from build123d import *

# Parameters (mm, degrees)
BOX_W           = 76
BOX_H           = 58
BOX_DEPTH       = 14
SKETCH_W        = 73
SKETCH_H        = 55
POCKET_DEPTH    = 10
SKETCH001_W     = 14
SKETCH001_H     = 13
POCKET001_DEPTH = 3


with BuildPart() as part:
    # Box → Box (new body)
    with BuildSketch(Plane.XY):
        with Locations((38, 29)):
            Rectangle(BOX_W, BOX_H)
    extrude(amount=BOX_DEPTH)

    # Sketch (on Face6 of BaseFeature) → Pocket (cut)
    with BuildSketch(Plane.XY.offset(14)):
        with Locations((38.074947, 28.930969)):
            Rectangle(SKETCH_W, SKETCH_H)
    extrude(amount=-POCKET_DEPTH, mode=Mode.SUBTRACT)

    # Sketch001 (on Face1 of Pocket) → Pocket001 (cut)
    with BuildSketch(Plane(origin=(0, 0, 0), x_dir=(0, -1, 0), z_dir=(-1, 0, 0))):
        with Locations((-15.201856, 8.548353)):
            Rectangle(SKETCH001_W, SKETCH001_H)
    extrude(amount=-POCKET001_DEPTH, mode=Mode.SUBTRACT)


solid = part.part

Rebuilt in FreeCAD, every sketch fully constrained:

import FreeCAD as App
import Part
import Sketcher
from FreeCAD import Vector
Q = App.Units.Quantity

doc = App.newDocument("Part")
params = doc.addObject("Spreadsheet::Sheet", "Params")
for row, (alias, value) in enumerate([
    ("sketch1_width", "76 mm"),
    ("sketch1_height", "58 mm"),
    ("pad1_length", "14 mm"),
    ("sketch2_width", "73 mm"),
    ("sketch2_height", "55 mm"),
    ("pocket1_length", "10 mm"),
    ("sketch3_width", "14 mm"),
    ("sketch3_height", "13 mm"),
    ("pocket2_length", "3 mm"),
], start=1):
    params.set(f"A{row}", alias)
    params.set(f"B{row}", "=" + value)
    params.setAlias(f"B{row}", alias)

body = doc.addObject("PartDesign::Body", "Body")

# Sketch on XY plane
sketch1 = body.newObject("Sketcher::SketchObject", "Sketch")
sketch1.AttachmentSupport = (doc.getObject("XY_Plane"), [""])
sketch1.MapMode = "FlatFace"
sketch1.addGeometry([
    Part.LineSegment(Vector(0, 58, 0), Vector(0, 0, 0)),
    Part.LineSegment(Vector(0, 0, 0), Vector(76, 0, 0)),
    Part.LineSegment(Vector(76, 0, 0), Vector(76, 58, 0)),
    Part.LineSegment(Vector(76, 58, 0), Vector(0, 58, 0)),
], False)
sketch1.addConstraint([
    Sketcher.Constraint("Coincident", 0, 2, 1, 1),
    Sketcher.Constraint("Coincident", 1, 2, 2, 1),
    Sketcher.Constraint("Coincident", 2, 2, 3, 1),
    Sketcher.Constraint("Coincident", 3, 2, 0, 1),
    Sketcher.Constraint("Vertical", 0),
    Sketcher.Constraint("Horizontal", 1),
    Sketcher.Constraint("Vertical", 2),
    Sketcher.Constraint("Horizontal", 3),
    Sketcher.Constraint("Coincident", 0, 2, -1, 1),
    Sketcher.Constraint("DistanceX", 1, 1, 1, 2, Q("76 mm")),
    Sketcher.Constraint("DistanceY", 0, 2, 0, 1, Q("58 mm")),
])
sketch1.setExpression("Constraints[9]", "Params.sketch1_width")
sketch1.setExpression("Constraints[10]", "Params.sketch1_height")
pad1 = body.newObject("PartDesign::Pad", "Pad")
pad1.Profile = sketch1
pad1.setExpression("Length", "Params.pad1_length")

# Sketch on XY plane
sketch2 = body.newObject("Sketcher::SketchObject", "Sketch001")
sketch2.AttachmentSupport = (doc.getObject("XY_Plane"), [""])
sketch2.MapMode = "FlatFace"
sketch2.AttachmentOffset = App.Placement(Vector(0, 0, 14), App.Rotation())
sketch2.addGeometry([
    Part.LineSegment(Vector(2, 56, 0), Vector(2, 1, 0)),
    Part.LineSegment(Vector(2, 1, 0), Vector(75, 1, 0)),
    Part.LineSegment(Vector(75, 1, 0), Vector(75, 56, 0)),
    Part.LineSegment(Vector(75, 56, 0), Vector(2, 56, 0)),
], False)
sketch2.addConstraint([
    Sketcher.Constraint("Coincident", 0, 2, 1, 1),
    Sketcher.Constraint("Coincident", 1, 2, 2, 1),
    Sketcher.Constraint("Coincident", 2, 2, 3, 1),
    Sketcher.Constraint("Coincident", 3, 2, 0, 1),
    Sketcher.Constraint("Vertical", 0),
    Sketcher.Constraint("Horizontal", 1),
    Sketcher.Constraint("Vertical", 2),
    Sketcher.Constraint("Horizontal", 3),
    Sketcher.Constraint("DistanceX", 1, 1, 1, 2, Q("73 mm")),
    Sketcher.Constraint("DistanceY", 0, 2, 0, 1, Q("55 mm")),
    Sketcher.Constraint("DistanceY", -1, 1, 0, 2, Q("1.430969 mm")),
    Sketcher.Constraint("DistanceX", -1, 1, 0, 2, Q("1.574947 mm")),
])
sketch2.setExpression("Constraints[8]", "Params.sketch2_width")
sketch2.setExpression("Constraints[9]", "Params.sketch2_height")
pocket1 = body.newObject("PartDesign::Pocket", "Pocket")
pocket1.Profile = sketch2
pocket1.setExpression("Length", "Params.pocket1_length")

# Sketch on YZ plane
sketch3 = body.newObject("Sketcher::SketchObject", "Sketch002")
sketch3.AttachmentSupport = (doc.getObject("YZ_Plane"), [""])
sketch3.MapMode = "FlatFace"
sketch3.addGeometry([
    Part.LineSegment(Vector(22, 15, 0), Vector(22, 2, 0)),
    Part.LineSegment(Vector(22, 2, 0), Vector(8, 2, 0)),
    Part.LineSegment(Vector(8, 2, 0), Vector(8, 15, 0)),
    Part.LineSegment(Vector(8, 15, 0), Vector(22, 15, 0)),
], False)
sketch3.addConstraint([
    Sketcher.Constraint("Coincident", 0, 2, 1, 1),
    Sketcher.Constraint("Coincident", 1, 2, 2, 1),
    Sketcher.Constraint("Coincident", 2, 2, 3, 1),
    Sketcher.Constraint("Coincident", 3, 2, 0, 1),
    Sketcher.Constraint("Vertical", 0),
    Sketcher.Constraint("Horizontal", 1),
    Sketcher.Constraint("Vertical", 2),
    Sketcher.Constraint("Horizontal", 3),
    Sketcher.Constraint("DistanceX", 1, 2, 1, 1, Q("14 mm")),
    Sketcher.Constraint("DistanceY", 0, 2, 0, 1, Q("13 mm")),
    Sketcher.Constraint("DistanceX", -1, 1, 0, 2, Q("22.201856 mm")),
    Sketcher.Constraint("DistanceY", -1, 1, 0, 2, Q("2.048353 mm")),
])
sketch3.setExpression("Constraints[8]", "Params.sketch3_width")
sketch3.setExpression("Constraints[9]", "Params.sketch3_height")
pocket2 = body.newObject("PartDesign::Pocket", "Pocket001")
pocket2.Profile = sketch3
pocket2.setExpression("Length", "Params.pocket2_length")
pocket2.Reversed = True

doc.recompute()
